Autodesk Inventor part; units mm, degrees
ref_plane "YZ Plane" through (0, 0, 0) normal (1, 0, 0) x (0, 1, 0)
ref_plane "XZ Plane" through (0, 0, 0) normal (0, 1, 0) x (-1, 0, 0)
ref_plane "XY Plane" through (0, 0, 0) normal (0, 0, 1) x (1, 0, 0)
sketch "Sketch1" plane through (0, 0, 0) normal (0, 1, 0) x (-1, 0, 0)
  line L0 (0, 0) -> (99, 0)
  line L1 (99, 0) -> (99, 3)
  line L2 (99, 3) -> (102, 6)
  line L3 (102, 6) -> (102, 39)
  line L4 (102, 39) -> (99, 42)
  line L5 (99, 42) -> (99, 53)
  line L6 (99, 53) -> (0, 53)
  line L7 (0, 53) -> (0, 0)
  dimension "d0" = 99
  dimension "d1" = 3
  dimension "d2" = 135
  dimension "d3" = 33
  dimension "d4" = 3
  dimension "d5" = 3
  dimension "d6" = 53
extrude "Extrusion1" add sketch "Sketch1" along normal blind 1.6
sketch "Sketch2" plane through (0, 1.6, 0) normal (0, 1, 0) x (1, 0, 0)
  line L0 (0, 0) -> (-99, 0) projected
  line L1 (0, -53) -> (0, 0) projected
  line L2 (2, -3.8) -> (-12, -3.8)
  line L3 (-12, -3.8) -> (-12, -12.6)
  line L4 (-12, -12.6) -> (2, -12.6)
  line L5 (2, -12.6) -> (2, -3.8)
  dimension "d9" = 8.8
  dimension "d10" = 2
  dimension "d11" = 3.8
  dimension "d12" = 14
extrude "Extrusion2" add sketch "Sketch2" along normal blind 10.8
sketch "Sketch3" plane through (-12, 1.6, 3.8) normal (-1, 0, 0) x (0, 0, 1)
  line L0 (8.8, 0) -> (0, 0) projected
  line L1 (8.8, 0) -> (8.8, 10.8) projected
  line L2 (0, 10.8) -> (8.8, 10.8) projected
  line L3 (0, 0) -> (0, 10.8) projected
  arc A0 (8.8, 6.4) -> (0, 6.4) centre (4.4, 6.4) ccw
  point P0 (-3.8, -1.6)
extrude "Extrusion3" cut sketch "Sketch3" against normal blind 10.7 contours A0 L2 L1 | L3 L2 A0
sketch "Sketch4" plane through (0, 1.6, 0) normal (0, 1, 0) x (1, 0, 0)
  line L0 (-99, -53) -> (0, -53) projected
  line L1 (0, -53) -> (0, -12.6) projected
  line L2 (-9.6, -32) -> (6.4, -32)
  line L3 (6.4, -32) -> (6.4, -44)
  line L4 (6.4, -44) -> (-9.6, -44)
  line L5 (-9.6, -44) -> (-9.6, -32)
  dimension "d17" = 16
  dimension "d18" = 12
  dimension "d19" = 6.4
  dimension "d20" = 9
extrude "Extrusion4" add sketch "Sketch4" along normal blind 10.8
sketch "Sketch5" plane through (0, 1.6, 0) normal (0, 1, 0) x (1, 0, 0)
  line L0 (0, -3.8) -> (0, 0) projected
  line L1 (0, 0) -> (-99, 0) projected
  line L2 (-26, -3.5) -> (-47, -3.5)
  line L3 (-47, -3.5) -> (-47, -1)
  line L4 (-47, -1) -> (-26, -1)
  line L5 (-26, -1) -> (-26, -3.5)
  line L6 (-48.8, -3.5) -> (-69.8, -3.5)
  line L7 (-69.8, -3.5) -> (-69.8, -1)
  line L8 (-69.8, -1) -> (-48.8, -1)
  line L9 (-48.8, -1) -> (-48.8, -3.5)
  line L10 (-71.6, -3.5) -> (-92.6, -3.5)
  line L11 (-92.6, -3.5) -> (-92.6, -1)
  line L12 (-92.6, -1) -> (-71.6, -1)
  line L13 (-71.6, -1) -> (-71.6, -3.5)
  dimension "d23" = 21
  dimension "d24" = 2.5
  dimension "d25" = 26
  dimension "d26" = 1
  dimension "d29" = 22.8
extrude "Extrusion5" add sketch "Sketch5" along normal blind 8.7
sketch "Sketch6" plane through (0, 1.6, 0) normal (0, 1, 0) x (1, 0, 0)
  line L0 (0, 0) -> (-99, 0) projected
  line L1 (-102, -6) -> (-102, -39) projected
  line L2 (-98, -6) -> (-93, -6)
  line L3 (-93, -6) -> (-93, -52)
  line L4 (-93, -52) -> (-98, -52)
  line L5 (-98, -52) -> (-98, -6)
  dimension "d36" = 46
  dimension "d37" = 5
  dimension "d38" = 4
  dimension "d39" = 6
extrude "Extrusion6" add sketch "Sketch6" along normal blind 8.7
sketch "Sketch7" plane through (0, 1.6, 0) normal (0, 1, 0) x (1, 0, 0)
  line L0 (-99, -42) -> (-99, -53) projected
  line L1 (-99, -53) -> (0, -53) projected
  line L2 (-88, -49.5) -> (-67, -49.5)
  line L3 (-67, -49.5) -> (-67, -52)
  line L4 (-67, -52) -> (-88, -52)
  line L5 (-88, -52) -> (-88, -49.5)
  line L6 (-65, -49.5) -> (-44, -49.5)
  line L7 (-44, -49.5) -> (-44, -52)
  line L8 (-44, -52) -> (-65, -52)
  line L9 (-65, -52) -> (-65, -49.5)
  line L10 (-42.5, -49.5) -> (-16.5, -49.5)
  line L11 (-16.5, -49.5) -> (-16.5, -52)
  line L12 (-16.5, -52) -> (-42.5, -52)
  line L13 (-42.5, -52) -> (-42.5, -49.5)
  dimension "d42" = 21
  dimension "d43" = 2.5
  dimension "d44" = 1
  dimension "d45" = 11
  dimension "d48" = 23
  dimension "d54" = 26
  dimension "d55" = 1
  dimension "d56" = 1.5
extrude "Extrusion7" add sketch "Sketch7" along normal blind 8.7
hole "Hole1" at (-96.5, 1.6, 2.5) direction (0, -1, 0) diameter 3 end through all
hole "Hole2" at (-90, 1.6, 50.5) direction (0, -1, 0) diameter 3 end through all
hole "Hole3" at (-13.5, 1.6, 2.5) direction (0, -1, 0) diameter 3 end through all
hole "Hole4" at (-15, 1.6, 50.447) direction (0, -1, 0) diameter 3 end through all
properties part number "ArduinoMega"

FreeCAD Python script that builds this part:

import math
import FreeCAD as App
import Part
import Sketcher

V = App.Vector

doc = App.newDocument("Part")
body = doc.addObject("PartDesign::Body", "Body")

# Sketch on XZ plane
sketch1 = body.newObject("Sketcher::SketchObject", "Sketch")
sketch1.AttachmentSupport = (doc.getObject("XZ_Plane"), [""])
sketch1.MapMode = "FlatFace"
sketch1.addGeometry([
    Part.LineSegment(V(0, 53, 0), V(0, 0, 0)),  # 0
    Part.LineSegment(V(0, 0, 0), V(-99, 0, 0)),  # 1
    Part.LineSegment(V(-99, 0, 0), V(-99, 3, 0)),  # 2
    Part.LineSegment(V(-99, 3, 0), V(-102, 6, 0)),  # 3
    Part.LineSegment(V(-102, 6, 0), V(-102, 39, 0)),  # 4
    Part.LineSegment(V(-102, 39, 0), V(-99, 42, 0)),  # 5
    Part.LineSegment(V(-99, 42, 0), V(-99, 53, 0)),  # 6
    Part.LineSegment(V(-99, 53, 0), V(0, 53, 0)),  # 7
], False)
sketch1.addConstraint([
    Sketcher.Constraint("Coincident", 0, 2, 1, 1),
    Sketcher.Constraint("Coincident", 1, 2, 2, 1),
    Sketcher.Constraint("Coincident", 2, 2, 3, 1),
    Sketcher.Constraint("Coincident", 3, 2, 4, 1),
    Sketcher.Constraint("Coincident", 4, 2, 5, 1),
    Sketcher.Constraint("Coincident", 5, 2, 6, 1),
    Sketcher.Constraint("Coincident", 6, 2, 7, 1),
    Sketcher.Constraint("Coincident", 7, 2, 0, 1),
    Sketcher.Constraint("Vertical", 0),
    Sketcher.Constraint("Horizontal", 1),
    Sketcher.Constraint("Vertical", 2),
    Sketcher.Constraint("Vertical", 4),
    Sketcher.Constraint("Vertical", 6),
    Sketcher.Constraint("Horizontal", 7),
    Sketcher.Constraint("Coincident", 0, 2, -1, 1),
    Sketcher.Constraint("Perpendicular", 3, 5),
    Sketcher.Constraint("Vertical", 2, 2, 5, 2),
    Sketcher.Constraint("Equal", 3, 5),
    Sketcher.Constraint("DistanceX", 1, 2, 1, 1, 99.0),
    Sketcher.Constraint("DistanceY", 0, 2, 0, 1, 53.0),
    Sketcher.Constraint("DistanceY", 2, 1, 2, 2, 3.0),
    Sketcher.Constraint("DistanceY", 4, 1, 4, 2, 33.0),
    Sketcher.Constraint("DistanceX", 3, 2, 2, 2, 3.0),
])
pad1 = body.newObject("PartDesign::Pad", "Pad")
pad1.Profile = sketch1
pad1.Length = 1.6
pad1.Reversed = True

# Sketch on XZ plane
sketch2 = body.newObject("Sketcher::SketchObject", "Sketch001")
sketch2.AttachmentSupport = (doc.getObject("XZ_Plane"), [""])
sketch2.MapMode = "FlatFace"
sketch2.AttachmentOffset = App.Placement(V(0, 0, -1.6), App.Rotation())
sketch2.addGeometry([
    Part.LineSegment(V(-12, 12.6, 0), V(2, 12.6, 0)),
    Part.LineSegment(V(2, 12.6, 0), V(2, 3.8, 0)),
    Part.LineSegment(V(2, 3.8, 0), V(-12, 3.8, 0)),
    Part.LineSegment(V(-12, 3.8, 0), V(-12, 12.6, 0)),
], False)
sketch2.addConstraint([
    Sketcher.Constraint("Coincident", 0, 2, 1, 1),
    Sketcher.Constraint("Coincident", 1, 2, 2, 1),
    Sketcher.Constraint("Coincident", 2, 2, 3, 1),
    Sketcher.Constraint("Coincident", 3, 2, 0, 1),
    Sketcher.Constraint("Horizontal", 0),
    Sketcher.Constraint("Vertical", 1),
    Sketcher.Constraint("Horizontal", 2),
    Sketcher.Constraint("Vertical", 3),
    Sketcher.Constraint("DistanceX", 0, 1, 0, 2, 14.0),
    Sketcher.Constraint("DistanceY", 1, 2, 1, 1, 8.8),
    Sketcher.Constraint("DistanceX", -1, 1, 0, 2, 2.0),
    Sketcher.Constraint("DistanceY", -1, 1, 1, 2, 3.8),
])
pad2 = body.newObject("PartDesign::Pad", "Pad001")
pad2.Profile = sketch2
pad2.Length = 10.8
pad2.Reversed = True

# Sketch on YZ plane
sketch3 = body.newObject("Sketcher::SketchObject", "Sketch002")
sketch3.AttachmentSupport = (doc.getObject("YZ_Plane"), [""])
sketch3.MapMode = "FlatFace"
sketch3.AttachmentOffset = App.Placement(V(0, 0, -12), App.Rotation())
sketch3.addGeometry([
    Part.ArcOfCircle(Part.Circle(V(8, 8.2, 0), V(0, 0, 1), 4.4), math.radians(0), math.radians(90)),  # 0
    Part.LineSegment(V(8, 12.6, 0), V(12.4, 12.6, 0)),  # 1
    Part.LineSegment(V(12.4, 12.6, 0), V(12.4, 8.2, 0)),  # 2
    Part.LineSegment(V(12.4, 3.8, 0), V(8, 3.8, 0)),  # 3
    Part.ArcOfCircle(Part.Circle(V(8, 8.2, 0), V(0, 0, 1), 4.4), math.radians(-90), math.radians(0)),  # 4
    Part.LineSegment(V(12.4, 8.2, 0), V(12.4, 3.8, 0)),  # 5
], False)
sketch3.addConstraint([
    Sketcher.Constraint("Tangent", 0, 2, 1, 1),
    Sketcher.Constraint("Coincident", 1, 2, 2, 1),
    Sketcher.Constraint("Tangent", 2, 2, 0, 1),
    Sketcher.Constraint("Tangent", 3, 2, 4, 1),
    Sketcher.Constraint("Tangent", 4, 2, 5, 1),
    Sketcher.Constraint("Coincident", 5, 2, 3, 1),
    Sketcher.Constraint("Horizontal", 1),
    Sketcher.Constraint("Vertical", 2),
    Sketcher.Constraint("Horizontal", 3),
    Sketcher.Constraint("Vertical", 5),
    Sketcher.Constraint("Coincident", 4, 3, 0, 3),
    Sketcher.Constraint("Equal", 0, 4),
    Sketcher.Constraint("Radius", 0, 4.4),
    Sketcher.Constraint("DistanceX", -1, 1, 0, 3, 8.0),
    Sketcher.Constraint("DistanceY", -1, 1, 0, 3, 8.2),
])
pocket1 = body.newObject("PartDesign::Pocket", "Pocket")
pocket1.Profile = sketch3
pocket1.Length = 10.7
pocket1.Reversed = True

# Sketch on XZ plane
sketch4 = body.newObject("Sketcher::SketchObject", "Sketch003")
sketch4.AttachmentSupport = (doc.getObject("XZ_Plane"), [""])
sketch4.MapMode = "FlatFace"
sketch4.AttachmentOffset = App.Placement(V(0, 0, -1.6), App.Rotation())
sketch4.addGeometry([
    Part.LineSegment(V(-9.6, 44, 0), V(6.4, 44, 0)),
    Part.LineSegment(V(6.4, 44, 0), V(6.4, 32, 0)),
    Part.LineSegment(V(6.4, 32, 0), V(-9.6, 32, 0)),
    Part.LineSegment(V(-9.6, 32, 0), V(-9.6, 44, 0)),
], False)
sketch4.addConstraint([
    Sketcher.Constraint("Coincident", 0, 2, 1, 1),
    Sketcher.Constraint("Coincident", 1, 2, 2, 1),
    Sketcher.Constraint("Coincident", 2, 2, 3, 1),
    Sketcher.Constraint("Coincident", 3, 2, 0, 1),
    Sketcher.Constraint("Horizontal", 0),
    Sketcher.Constraint("Vertical", 1),
    Sketcher.Constraint("Horizontal", 2),
    Sketcher.Constraint("Vertical", 3),
    Sketcher.Constraint("DistanceX", 0, 1, 0, 2, 16.0),
    Sketcher.Constraint("DistanceY", 1, 2, 1, 1, 12.0),
    Sketcher.Constraint("DistanceX", -1, 1, 0, 2, 6.4),
    Sketcher.Constraint("DistanceY", -1, 1, 0, 2, 44.0),
])
pad3 = body.newObject("PartDesign::Pad", "Pad002")
pad3.Profile = sketch4
pad3.Length = 10.8
pad3.Reversed = True

# Sketch on XZ plane
sketch5 = body.newObject("Sketcher::SketchObject", "Sketch004")
sketch5.AttachmentSupport = (doc.getObject("XZ_Plane"), [""])
sketch5.MapMode = "FlatFace"
sketch5.AttachmentOffset = App.Placement(V(0, 0, -1.6), App.Rotation())
sketch5.addGeometry([
    Part.LineSegment(V(-47, 3.5, 0), V(-26, 3.5, 0)),  # 0
    Part.LineSegment(V(-26, 3.5, 0), V(-26, 1, 0)),  # 1
    Part.LineSegment(V(-26, 1, 0), V(-47, 1, 0)),  # 2
    Part.LineSegment(V(-47, 1, 0), V(-47, 3.5, 0)),  # 3
    Part.LineSegment(V(-69.8, 3.5, 0), V(-48.8, 3.5, 0)),  # 4
    Part.LineSegment(V(-48.8, 3.5, 0), V(-48.8, 1, 0)),  # 5
    Part.LineSegment(V(-48.8, 1, 0), V(-69.8, 1, 0)),  # 6
    Part.LineSegment(V(-69.8, 1, 0), V(-69.8, 3.5, 0)),  # 7
    Part.LineSegment(V(-92.6, 3.5, 0), V(-71.6, 3.5, 0)),  # 8
    Part.LineSegment(V(-71.6, 3.5, 0), V(-71.6, 1, 0)),  # 9
    Part.LineSegment(V(-71.6, 1, 0), V(-92.6, 1, 0)),  # 10
    Part.LineSegment(V(-92.6, 1, 0), V(-92.6, 3.5, 0)),  # 11
], False)
sketch5.addConstraint([
    Sketcher.Constraint("Coincident", 0, 2, 1, 1),
    Sketcher.Constraint("Coincident", 1, 2, 2, 1),
    Sketcher.Constraint("Coincident", 2, 2, 3, 1),
    Sketcher.Constraint("Coincident", 3, 2, 0, 1),
    Sketcher.Constraint("Coincident", 4, 2, 5, 1),
    Sketcher.Constraint("Coincident", 5, 2, 6, 1),
    Sketcher.Constraint("Coincident", 6, 2, 7, 1),
    Sketcher.Constraint("Coincident", 7, 2, 4, 1),
    Sketcher.Constraint("Coincident", 8, 2, 9, 1),
    Sketcher.Constraint("Coincident", 9, 2, 10, 1),
    Sketcher.Constraint("Coincident", 10, 2, 11, 1),
    Sketcher.Constraint("Coincident", 11, 2, 8, 1),
    Sketcher.Constraint("Horizontal", 0),
    Sketcher.Constraint("Vertical", 1),
    Sketcher.Constraint("Horizontal", 2),
    Sketcher.Constraint("Vertical", 3),
    Sketcher.Constraint("Horizontal", 4),
    Sketcher.Constraint("Vertical", 5),
    Sketcher.Constraint("Horizontal", 6),
    Sketcher.Constraint("Vertical", 7),
    Sketcher.Constraint("Horizontal", 8),
    Sketcher.Constraint("Vertical", 9),
    Sketcher.Constraint("Horizontal", 10),
    Sketcher.Constraint("Vertical", 11),
    Sketcher.Constraint("Horizontal", 3, 2, 4, 2),
    Sketcher.Constraint("Horizontal", 2, 2, 5, 2),
    Sketcher.Constraint("Horizontal", 7, 2, 8, 2),
    Sketcher.Constraint("Horizontal", 6, 2, 9, 2),
    Sketcher.Constraint("Equal", 2, 4),
    Sketcher.Constraint("Equal", 6, 8),
    Sketcher.Constraint("DistanceX", 0, 1, 0, 2, 21.0),
    Sketcher.Constraint("DistanceY", 1, 2, 1, 1, 2.5),
    Sketcher.Constraint("DistanceX", 0, 2, -1, 1, 26.0),
    Sketcher.Constraint("DistanceY", -1, 1, 1, 2, 1.0),
    Sketcher.Constraint("DistanceX", 4, 2, 0, 2, 22.8),
    Sketcher.Constraint("DistanceX", 8, 2, 4, 2, 22.8),
])
pad4 = body.newObject("PartDesign::Pad", "Pad003")
pad4.Profile = sketch5
pad4.Length = 8.7
pad4.Reversed = True

# Sketch on XZ plane
sketch6 = body.newObject("Sketcher::SketchObject", "Sketch005")
sketch6.AttachmentSupport = (doc.getObject("XZ_Plane"), [""])
sketch6.MapMode = "FlatFace"
sketch6.AttachmentOffset = App.Placement(V(0, 0, -1.6), App.Rotation())
sketch6.addGeometry([
    Part.LineSegment(V(-93, 6, 0), V(-98, 6, 0)),
    Part.LineSegment(V(-98, 6, 0), V(-98, 52, 0)),
    Part.LineSegment(V(-98, 52, 0), V(-93, 52, 0)),
    Part.LineSegment(V(-93, 52, 0), V(-93, 6, 0)),
], False)
sketch6.addConstraint([
    Sketcher.Constraint("Coincident", 0, 2, 1, 1),
    Sketcher.Constraint("Coincident", 1, 2, 2, 1),
    Sketcher.Constraint("Coincident", 2, 2, 3, 1),
    Sketcher.Constraint("Coincident", 3, 2, 0, 1),
    Sketcher.Constraint("Horizontal", 0),
    Sketcher.Constraint("Vertical", 1),
    Sketcher.Constraint("Horizontal", 2),
    Sketcher.Constraint("Vertical", 3),
    Sketcher.Constraint("DistanceX", 0, 2, 0, 1, 5.0),
    Sketcher.Constraint("DistanceY", 1, 1, 1, 2, 46.0),
    Sketcher.Constraint("DistanceY", -1, 1, 0, 2, 6.0),
    Sketcher.Constraint("DistanceX", 0, 2, -1, 1, 98.0),
])
pad5 = body.newObject("PartDesign::Pad", "Pad004")
pad5.Profile = sketch6
pad5.Length = 8.7
pad5.Reversed = True

# Sketch on XZ plane
sketch7 = body.newObject("Sketcher::SketchObject", "Sketch006")
sketch7.AttachmentSupport = (doc.getObject("XZ_Plane"), [""])
sketch7.MapMode = "FlatFace"
sketch7.AttachmentOffset = App.Placement(V(0, 0, -1.6), App.Rotation())
sketch7.addGeometry([
    Part.LineSegment(V(-67, 49.5, 0), V(-88, 49.5, 0)),  # 0
    Part.LineSegment(V(-88, 49.5, 0), V(-88, 52, 0)),  # 1
    Part.LineSegment(V(-88, 52, 0), V(-67, 52, 0)),  # 2
    Part.LineSegment(V(-67, 52, 0), V(-67, 49.5, 0)),  # 3
    Part.LineSegment(V(-44, 49.5, 0), V(-65, 49.5, 0)),  # 4
    Part.LineSegment(V(-65, 49.5, 0), V(-65, 52, 0)),  # 5
    Part.LineSegment(V(-65, 52, 0), V(-44, 52, 0)),  # 6
    Part.LineSegment(V(-44, 52, 0), V(-44, 49.5, 0)),  # 7
    Part.LineSegment(V(-16.5, 49.5, 0), V(-42.5, 49.5, 0)),  # 8
    Part.LineSegment(V(-42.5, 49.5, 0), V(-42.5, 52, 0)),  # 9
    Part.LineSegment(V(-42.5, 52, 0), V(-16.5, 52, 0)),  # 10
    Part.LineSegment(V(-16.5, 52, 0), V(-16.5, 49.5, 0)),  # 11
], False)
sketch7.addConstraint([
    Sketcher.Constraint("Coincident", 0, 2, 1, 1),
    Sketcher.Constraint("Coincident", 1, 2, 2, 1),
    Sketcher.Constraint("Coincident", 2, 2, 3, 1),
    Sketcher.Constraint("Coincident", 3, 2, 0, 1),
    Sketcher.Constraint("Coincident", 4, 2, 5, 1),
    Sketcher.Constraint("Coincident", 5, 2, 6, 1),
    Sketcher.Constraint("Coincident", 6, 2, 7, 1),
    Sketcher.Constraint("Coincident", 7, 2, 4, 1),
    Sketcher.Constraint("Coincident", 8, 2, 9, 1),
    Sketcher.Constraint("Coincident", 9, 2, 10, 1),
    Sketcher.Constraint("Coincident", 10, 2, 11, 1),
    Sketcher.Constraint("Coincident", 11, 2, 8, 1),
    Sketcher.Constraint("Horizontal", 0),
    Sketcher.Constraint("Vertical", 1),
    Sketcher.Constraint("Horizontal", 2),
    Sketcher.Constraint("Vertical", 3),
    Sketcher.Constraint("Horizontal", 4),
    Sketcher.Constraint("Vertical", 5),
    Sketcher.Constraint("Horizontal", 6),
    Sketcher.Constraint("Vertical", 7),
    Sketcher.Constraint("Horizontal", 8),
    Sketcher.Constraint("Vertical", 9),
    Sketcher.Constraint("Horizontal", 10),
    Sketcher.Constraint("Vertical", 11),
    Sketcher.Constraint("Horizontal", 3, 2, 4, 2),
    Sketcher.Constraint("Horizontal", 2, 2, 5, 2),
    Sketcher.Constraint("Horizontal", 7, 2, 8, 2),
    Sketcher.Constraint("Horizontal", 6, 2, 9, 2),
    Sketcher.Constraint("Equal", 2, 4),
    Sketcher.Constraint("DistanceX", 0, 2, 0, 1, 21.0),
    Sketcher.Constraint("DistanceX", 8, 2, 8, 1, 26.0),
    Sketcher.Constraint("DistanceY", 1, 1, 1, 2, 2.5),
    Sketcher.Constraint("DistanceX", 0, 2, 4, 2, 23.0),
    Sketcher.Constraint("DistanceX", 7, 2, 8, 2, 1.5),
    Sketcher.Constraint("DistanceX", 0, 2, -1, 1, 88.0),
    Sketcher.Constraint("DistanceY", -1, 1, 1, 2, 52.0),
])
pad6 = body.newObject("PartDesign::Pad", "Pad005")
pad6.Profile = sketch7
pad6.Length = 8.7
pad6.Reversed = True

# Sketch on XZ plane
sketch8 = body.newObject("Sketcher::SketchObject", "Sketch007")
sketch8.AttachmentSupport = (doc.getObject("XZ_Plane"), [""])
sketch8.MapMode = "FlatFace"
sketch8.AttachmentOffset = App.Placement(V(0, 0, -1.6), App.Rotation())
sketch8.addGeometry(Part.Circle(V(-96.5, 2.5, 0), V(0, 0, 1), 1.5), False)
sketch8.addConstraint([
    Sketcher.Constraint("Diameter", 0, 3.0),
    Sketcher.Constraint("DistanceX", 0, 3, -1, 1, 96.5),
    Sketcher.Constraint("DistanceY", -1, 1, 0, 3, 2.5),
])
doc.recompute()
hole = body.newObject("PartDesign::Hole", "Hole")
hole.Profile = sketch8
hole.ThreadType = "None"
hole.Diameter = 3
hole.DepthType = "ThroughAll"
hole.Reversed = True

# Sketch on XZ plane
sketch9 = body.newObject("Sketcher::SketchObject", "Sketch008")
sketch9.AttachmentSupport = (doc.getObject("XZ_Plane"), [""])
sketch9.MapMode = "FlatFace"
sketch9.AttachmentOffset = App.Placement(V(0, 0, -1.6), App.Rotation())
sketch9.addGeometry(Part.Circle(V(-90, 50.5, 0), V(0, 0, 1), 1.5), False)
sketch9.addConstraint([
    Sketcher.Constraint("Diameter", 0, 3.0),
    Sketcher.Constraint("DistanceX", 0, 3, -1, 1, 90.0),
    Sketcher.Constraint("DistanceY", -1, 1, 0, 3, 50.5),
])
doc.recompute()
hole2 = body.newObject("PartDesign::Hole", "Hole001")
hole2.Profile = sketch9
hole2.ThreadType = "None"
hole2.Diameter = 3
hole2.DepthType = "ThroughAll"
hole2.Reversed = True

# Sketch on XZ plane
sketch10 = body.newObject("Sketcher::SketchObject", "Sketch009")
sketch10.AttachmentSupport = (doc.getObject("XZ_Plane"), [""])
sketch10.MapMode = "FlatFace"
sketch10.AttachmentOffset = App.Placement(V(0, 0, -1.6), App.Rotation())
sketch10.addGeometry(Part.Circle(V(-13.5, 2.5, 0), V(0, 0, 1), 1.5), False)
sketch10.addConstraint([
    Sketcher.Constraint("Diameter", 0, 3.0),
    Sketcher.Constraint("DistanceX", 0, 3, -1, 1, 13.5),
    Sketcher.Constraint("DistanceY", -1, 1, 0, 3, 2.5),
])
doc.recompute()
hole3 = body.newObject("PartDesign::Hole", "Hole002")
hole3.Profile = sketch10
hole3.ThreadType = "None"
hole3.Diameter = 3
hole3.DepthType = "ThroughAll"
hole3.Reversed = True

# Sketch on XZ plane
sketch11 = body.newObject("Sketcher::SketchObject", "Sketch010")
sketch11.AttachmentSupport = (doc.getObject("XZ_Plane"), [""])
sketch11.MapMode = "FlatFace"
sketch11.AttachmentOffset = App.Placement(V(0, 0, -1.6), App.Rotation())
sketch11.addGeometry(Part.Circle(V(-15, 50.447, 0), V(0, 0, 1), 1.5), False)
sketch11.addConstraint([
    Sketcher.Constraint("Diameter", 0, 3.0),
    Sketcher.Constraint("DistanceX", 0, 3, -1, 1, 15.0),
    Sketcher.Constraint("DistanceY", -1, 1, 0, 3, 50.447),
])
doc.recompute()
hole4 = body.newObject("PartDesign::Hole", "Hole003")
hole4.Profile = sketch11
hole4.ThreadType = "None"
hole4.Diameter = 3
hole4.DepthType = "ThroughAll"
hole4.Reversed = True

doc.recompute()
